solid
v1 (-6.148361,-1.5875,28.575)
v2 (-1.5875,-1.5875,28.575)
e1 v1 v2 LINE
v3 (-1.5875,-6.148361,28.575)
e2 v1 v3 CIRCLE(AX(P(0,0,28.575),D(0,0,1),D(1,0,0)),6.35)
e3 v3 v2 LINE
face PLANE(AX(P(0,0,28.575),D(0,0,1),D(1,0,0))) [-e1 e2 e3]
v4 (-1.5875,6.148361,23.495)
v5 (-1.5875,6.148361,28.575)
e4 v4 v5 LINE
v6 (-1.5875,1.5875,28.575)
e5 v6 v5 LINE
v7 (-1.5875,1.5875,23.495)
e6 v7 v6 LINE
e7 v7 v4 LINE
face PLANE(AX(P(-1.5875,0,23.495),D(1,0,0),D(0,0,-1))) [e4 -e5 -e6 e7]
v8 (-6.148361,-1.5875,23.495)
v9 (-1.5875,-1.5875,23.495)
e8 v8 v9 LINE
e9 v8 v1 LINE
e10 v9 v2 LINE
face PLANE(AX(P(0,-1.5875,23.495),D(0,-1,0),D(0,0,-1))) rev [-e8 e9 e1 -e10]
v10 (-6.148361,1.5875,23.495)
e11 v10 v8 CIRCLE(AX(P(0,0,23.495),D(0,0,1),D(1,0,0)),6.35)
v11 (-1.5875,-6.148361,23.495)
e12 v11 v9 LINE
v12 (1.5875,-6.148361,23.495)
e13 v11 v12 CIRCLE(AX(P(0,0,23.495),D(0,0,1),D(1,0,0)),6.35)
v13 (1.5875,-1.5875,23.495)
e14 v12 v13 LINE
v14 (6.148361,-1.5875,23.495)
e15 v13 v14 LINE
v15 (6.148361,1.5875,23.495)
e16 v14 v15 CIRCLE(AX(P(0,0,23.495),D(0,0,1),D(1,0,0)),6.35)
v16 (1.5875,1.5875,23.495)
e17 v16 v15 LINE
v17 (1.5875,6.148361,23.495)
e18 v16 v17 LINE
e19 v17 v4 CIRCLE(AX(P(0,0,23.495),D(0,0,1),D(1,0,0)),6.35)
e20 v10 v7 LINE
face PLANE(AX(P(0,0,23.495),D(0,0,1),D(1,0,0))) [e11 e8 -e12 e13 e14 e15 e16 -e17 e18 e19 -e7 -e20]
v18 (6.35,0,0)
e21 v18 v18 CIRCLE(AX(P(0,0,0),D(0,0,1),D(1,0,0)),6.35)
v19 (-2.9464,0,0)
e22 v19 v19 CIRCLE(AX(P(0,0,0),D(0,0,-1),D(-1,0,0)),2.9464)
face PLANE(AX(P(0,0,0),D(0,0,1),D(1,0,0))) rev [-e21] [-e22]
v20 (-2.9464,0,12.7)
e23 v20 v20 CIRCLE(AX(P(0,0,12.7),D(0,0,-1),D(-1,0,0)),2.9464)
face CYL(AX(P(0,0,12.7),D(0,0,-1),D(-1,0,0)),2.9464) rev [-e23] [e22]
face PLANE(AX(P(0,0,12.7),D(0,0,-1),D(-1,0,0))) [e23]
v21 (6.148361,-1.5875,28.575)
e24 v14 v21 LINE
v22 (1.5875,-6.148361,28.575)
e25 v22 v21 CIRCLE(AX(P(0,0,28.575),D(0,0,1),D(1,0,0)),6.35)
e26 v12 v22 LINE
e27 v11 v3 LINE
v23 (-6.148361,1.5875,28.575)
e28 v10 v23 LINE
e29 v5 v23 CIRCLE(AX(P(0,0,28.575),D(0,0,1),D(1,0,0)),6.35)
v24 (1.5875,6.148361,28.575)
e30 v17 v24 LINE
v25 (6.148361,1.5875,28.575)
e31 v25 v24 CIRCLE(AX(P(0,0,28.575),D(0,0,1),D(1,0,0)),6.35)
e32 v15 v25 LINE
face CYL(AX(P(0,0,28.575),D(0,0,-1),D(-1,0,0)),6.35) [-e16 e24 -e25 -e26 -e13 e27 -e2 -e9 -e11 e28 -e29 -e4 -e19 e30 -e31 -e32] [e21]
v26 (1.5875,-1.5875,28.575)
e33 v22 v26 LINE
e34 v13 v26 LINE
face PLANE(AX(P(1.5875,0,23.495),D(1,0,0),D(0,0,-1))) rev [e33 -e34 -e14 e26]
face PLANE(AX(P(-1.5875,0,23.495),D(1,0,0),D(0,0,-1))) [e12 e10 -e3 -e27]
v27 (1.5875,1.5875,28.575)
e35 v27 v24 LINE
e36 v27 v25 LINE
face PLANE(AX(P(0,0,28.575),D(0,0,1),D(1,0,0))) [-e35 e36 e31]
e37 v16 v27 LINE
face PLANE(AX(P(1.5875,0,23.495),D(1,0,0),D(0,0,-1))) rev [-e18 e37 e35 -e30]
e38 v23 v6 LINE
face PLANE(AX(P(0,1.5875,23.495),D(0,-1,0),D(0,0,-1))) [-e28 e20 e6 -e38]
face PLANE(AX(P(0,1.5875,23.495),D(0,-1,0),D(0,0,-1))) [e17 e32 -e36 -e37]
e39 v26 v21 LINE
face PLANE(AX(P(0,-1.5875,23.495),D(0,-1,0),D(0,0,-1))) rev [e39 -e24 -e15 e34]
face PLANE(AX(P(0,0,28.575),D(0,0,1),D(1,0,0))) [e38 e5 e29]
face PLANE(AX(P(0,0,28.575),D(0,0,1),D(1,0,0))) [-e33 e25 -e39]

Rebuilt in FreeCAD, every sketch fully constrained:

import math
import FreeCAD as App
import Part
import Sketcher
from FreeCAD import Vector
Q = App.Units.Quantity

doc = App.newDocument("Part")
body = doc.addObject("PartDesign::Body", "Body")

sketch1 = body.newObject("Sketcher::SketchObject", "Sketch")
sketch1.AttachmentSupport = (doc.getObject("XY_Plane"), [""])
sketch1.MapMode = "FlatFace"
sketch1.addGeometry(Part.Circle(Vector(0, 0, 0), Vector(0, 0, 1), 6.35), False)
sketch1.addConstraint(Sketcher.Constraint("Coincident", 0, 3, -1, 1))
sketch1.addConstraint(Sketcher.Constraint("Diameter", 0, Q("0.5 in")))
pad1 = body.newObject("PartDesign::Pad", "Pad")
pad1.Profile = sketch1
pad1.Length = Q("1.125 in")

sketch2 = body.newObject("Sketcher::SketchObject", "Sketch001")
sketch2.AttachmentSupport = (doc.getObject("XY_Plane"), [""])
sketch2.MapMode = "FlatFace"
sketch2.addGeometry(Part.Circle(Vector(0, 0, 0), Vector(0, 0, 1), 2.9464), False)
sketch2.addConstraint(Sketcher.Constraint("Coincident", 0, 3, -1, 1))
sketch2.addConstraint(Sketcher.Constraint("Diameter", 0, Q("0.232 in")))
pocket1 = body.newObject("PartDesign::Pocket", "Pocket")
pocket1.Profile = sketch2
pocket1.Length = Q("0.5 in")
pocket1.Reversed = True

sketch3 = body.newObject("Sketcher::SketchObject", "Sketch002")
sketch3.AttachmentSupport = (doc.getObject("XY_Plane"), [""])
sketch3.MapMode = "FlatFace"
sketch3.AttachmentOffset = App.Placement(Vector(0, 0, 0.925 * 25.4), App.Rotation())
sketch3.addGeometry(Part.LineSegment(Vector(-1.5875, 6.148361, 0), Vector(-1.5875, 1.5875, 0)), False)
sketch3.addGeometry(Part.LineSegment(Vector(-1.5875, 1.5875, 0), Vector(-6.148361, 1.5875, 0)), False)
sketch3.addGeometry(Part.ArcOfCircle(Part.Circle(Vector(0, 0, 0), Vector(0, 0, 1), 6.35), math.radians(165.522488), math.radians(194.477512)), False)
sketch3.addGeometry(Part.LineSegment(Vector(-6.148361, -1.5875, 0), Vector(-1.5875, -1.5875, 0)), False)
sketch3.addGeometry(Part.LineSegment(Vector(-1.5875, -1.5875, 0), Vector(-1.5875, -6.148361, 0)), False)
sketch3.addGeometry(Part.ArcOfCircle(Part.Circle(Vector(0, 0, 0), Vector(0, 0, 1), 6.35), math.radians(-104.477512), math.radians(-75.522488)), False)
sketch3.addGeometry(Part.LineSegment(Vector(1.5875, -6.148361, 0), Vector(1.5875, -1.5875, 0)), False)
sketch3.addGeometry(Part.LineSegment(Vector(1.5875, -1.5875, 0), Vector(6.148361, -1.5875, 0)), False)
sketch3.addGeometry(Part.ArcOfCircle(Part.Circle(Vector(0, 0, 0), Vector(0, 0, 1), 6.35), math.radians(-14.477512), math.radians(0)), False)
sketch3.addGeometry(Part.ArcOfCircle(Part.Circle(Vector(0, 0, 0), Vector(0, 0, 1), 6.35), math.radians(0), math.radians(14.477512)), False)
sketch3.addGeometry(Part.LineSegment(Vector(6.148361, 1.5875, 0), Vector(1.5875, 1.5875, 0)), False)
sketch3.addGeometry(Part.LineSegment(Vector(1.5875, 1.5875, 0), Vector(1.5875, 6.148361, 0)), False)
sketch3.addGeometry(Part.ArcOfCircle(Part.Circle(Vector(0, 0, 0), Vector(0, 0, 1), 6.35), math.radians(75.522488), math.radians(104.477512)), False)
sketch3.addConstraint(Sketcher.Constraint("Coincident", 0, 2, 1, 1))
sketch3.addConstraint(Sketcher.Constraint("Coincident", 1, 2, 2, 1))
sketch3.addConstraint(Sketcher.Constraint("Coincident", 2, 2, 3, 1))
sketch3.addConstraint(Sketcher.Constraint("Coincident", 3, 2, 4, 1))
sketch3.addConstraint(Sketcher.Constraint("Coincident", 4, 2, 5, 1))
sketch3.addConstraint(Sketcher.Constraint("Coincident", 5, 2, 6, 1))
sketch3.addConstraint(Sketcher.Constraint("Coincident", 6, 2, 7, 1))
sketch3.addConstraint(Sketcher.Constraint("Coincident", 7, 2, 8, 1))
sketch3.addConstraint(Sketcher.Constraint("Tangent", 8, 2, 9, 1))
sketch3.addConstraint(Sketcher.Constraint("Coincident", 9, 2, 10, 1))
sketch3.addConstraint(Sketcher.Constraint("Coincident", 10, 2, 11, 1))
sketch3.addConstraint(Sketcher.Constraint("Coincident", 11, 2, 12, 1))
sketch3.addConstraint(Sketcher.Constraint("Coincident", 12, 2, 0, 1))
sketch3.addConstraint(Sketcher.Constraint("Vertical", 0))
sketch3.addConstraint(Sketcher.Constraint("Horizontal", 1))
sketch3.addConstraint(Sketcher.Constraint("Horizontal", 3))
sketch3.addConstraint(Sketcher.Constraint("Vertical", 4))
sketch3.addConstraint(Sketcher.Constraint("Vertical", 6))
sketch3.addConstraint(Sketcher.Constraint("Horizontal", 7))
sketch3.addConstraint(Sketcher.Constraint("Horizontal", 10))
sketch3.addConstraint(Sketcher.Constraint("Vertical", 11))
sketch3.addConstraint(Sketcher.Constraint("Coincident", 2, 3, -1, 1))
sketch3.addConstraint(Sketcher.Constraint("Coincident", 5, 3, -1, 1))
sketch3.addConstraint(Sketcher.Constraint("Coincident", 8, 3, -1, 1))
sketch3.addConstraint(Sketcher.Constraint("Coincident", 12, 3, -1, 1))
sketch3.addConstraint(Sketcher.Constraint("Equal", 2, 5))
sketch3.addConstraint(Sketcher.Constraint("Equal", 5, 8))
sketch3.addConstraint(Sketcher.Constraint("Equal", 8, 9))
sketch3.addConstraint(Sketcher.Constraint("Equal", 9, 12))
sketch3.addConstraint(Sketcher.Constraint("Symmetric", 0, 2, 6, 2, -1, 1))
sketch3.addConstraint(Sketcher.Constraint("Symmetric", 3, 2, 10, 2, -1, 1))
sketch3.addConstraint(Sketcher.Constraint("Symmetric", 3, 2, 6, 2, -2))
sketch3.addConstraint(Sketcher.Constraint("PointOnObject", 8, 2, -1))
sketch3.addConstraint(Sketcher.Constraint("Equal", 10, 0))
sketch3.addConstraint(Sketcher.Constraint("Radius", 2, Q("0.25 in")))
sketch3.addConstraint(Sketcher.Constraint("DistanceX", 0, 2, -1, 1, Q("0.0625 in")))
pocket2 = body.newObject("PartDesign::Pocket", "Pocket001")
pocket2.Profile = sketch3
pocket2.Length = Q("0.2 in")
pocket2.Reversed = True

doc.recompute()
